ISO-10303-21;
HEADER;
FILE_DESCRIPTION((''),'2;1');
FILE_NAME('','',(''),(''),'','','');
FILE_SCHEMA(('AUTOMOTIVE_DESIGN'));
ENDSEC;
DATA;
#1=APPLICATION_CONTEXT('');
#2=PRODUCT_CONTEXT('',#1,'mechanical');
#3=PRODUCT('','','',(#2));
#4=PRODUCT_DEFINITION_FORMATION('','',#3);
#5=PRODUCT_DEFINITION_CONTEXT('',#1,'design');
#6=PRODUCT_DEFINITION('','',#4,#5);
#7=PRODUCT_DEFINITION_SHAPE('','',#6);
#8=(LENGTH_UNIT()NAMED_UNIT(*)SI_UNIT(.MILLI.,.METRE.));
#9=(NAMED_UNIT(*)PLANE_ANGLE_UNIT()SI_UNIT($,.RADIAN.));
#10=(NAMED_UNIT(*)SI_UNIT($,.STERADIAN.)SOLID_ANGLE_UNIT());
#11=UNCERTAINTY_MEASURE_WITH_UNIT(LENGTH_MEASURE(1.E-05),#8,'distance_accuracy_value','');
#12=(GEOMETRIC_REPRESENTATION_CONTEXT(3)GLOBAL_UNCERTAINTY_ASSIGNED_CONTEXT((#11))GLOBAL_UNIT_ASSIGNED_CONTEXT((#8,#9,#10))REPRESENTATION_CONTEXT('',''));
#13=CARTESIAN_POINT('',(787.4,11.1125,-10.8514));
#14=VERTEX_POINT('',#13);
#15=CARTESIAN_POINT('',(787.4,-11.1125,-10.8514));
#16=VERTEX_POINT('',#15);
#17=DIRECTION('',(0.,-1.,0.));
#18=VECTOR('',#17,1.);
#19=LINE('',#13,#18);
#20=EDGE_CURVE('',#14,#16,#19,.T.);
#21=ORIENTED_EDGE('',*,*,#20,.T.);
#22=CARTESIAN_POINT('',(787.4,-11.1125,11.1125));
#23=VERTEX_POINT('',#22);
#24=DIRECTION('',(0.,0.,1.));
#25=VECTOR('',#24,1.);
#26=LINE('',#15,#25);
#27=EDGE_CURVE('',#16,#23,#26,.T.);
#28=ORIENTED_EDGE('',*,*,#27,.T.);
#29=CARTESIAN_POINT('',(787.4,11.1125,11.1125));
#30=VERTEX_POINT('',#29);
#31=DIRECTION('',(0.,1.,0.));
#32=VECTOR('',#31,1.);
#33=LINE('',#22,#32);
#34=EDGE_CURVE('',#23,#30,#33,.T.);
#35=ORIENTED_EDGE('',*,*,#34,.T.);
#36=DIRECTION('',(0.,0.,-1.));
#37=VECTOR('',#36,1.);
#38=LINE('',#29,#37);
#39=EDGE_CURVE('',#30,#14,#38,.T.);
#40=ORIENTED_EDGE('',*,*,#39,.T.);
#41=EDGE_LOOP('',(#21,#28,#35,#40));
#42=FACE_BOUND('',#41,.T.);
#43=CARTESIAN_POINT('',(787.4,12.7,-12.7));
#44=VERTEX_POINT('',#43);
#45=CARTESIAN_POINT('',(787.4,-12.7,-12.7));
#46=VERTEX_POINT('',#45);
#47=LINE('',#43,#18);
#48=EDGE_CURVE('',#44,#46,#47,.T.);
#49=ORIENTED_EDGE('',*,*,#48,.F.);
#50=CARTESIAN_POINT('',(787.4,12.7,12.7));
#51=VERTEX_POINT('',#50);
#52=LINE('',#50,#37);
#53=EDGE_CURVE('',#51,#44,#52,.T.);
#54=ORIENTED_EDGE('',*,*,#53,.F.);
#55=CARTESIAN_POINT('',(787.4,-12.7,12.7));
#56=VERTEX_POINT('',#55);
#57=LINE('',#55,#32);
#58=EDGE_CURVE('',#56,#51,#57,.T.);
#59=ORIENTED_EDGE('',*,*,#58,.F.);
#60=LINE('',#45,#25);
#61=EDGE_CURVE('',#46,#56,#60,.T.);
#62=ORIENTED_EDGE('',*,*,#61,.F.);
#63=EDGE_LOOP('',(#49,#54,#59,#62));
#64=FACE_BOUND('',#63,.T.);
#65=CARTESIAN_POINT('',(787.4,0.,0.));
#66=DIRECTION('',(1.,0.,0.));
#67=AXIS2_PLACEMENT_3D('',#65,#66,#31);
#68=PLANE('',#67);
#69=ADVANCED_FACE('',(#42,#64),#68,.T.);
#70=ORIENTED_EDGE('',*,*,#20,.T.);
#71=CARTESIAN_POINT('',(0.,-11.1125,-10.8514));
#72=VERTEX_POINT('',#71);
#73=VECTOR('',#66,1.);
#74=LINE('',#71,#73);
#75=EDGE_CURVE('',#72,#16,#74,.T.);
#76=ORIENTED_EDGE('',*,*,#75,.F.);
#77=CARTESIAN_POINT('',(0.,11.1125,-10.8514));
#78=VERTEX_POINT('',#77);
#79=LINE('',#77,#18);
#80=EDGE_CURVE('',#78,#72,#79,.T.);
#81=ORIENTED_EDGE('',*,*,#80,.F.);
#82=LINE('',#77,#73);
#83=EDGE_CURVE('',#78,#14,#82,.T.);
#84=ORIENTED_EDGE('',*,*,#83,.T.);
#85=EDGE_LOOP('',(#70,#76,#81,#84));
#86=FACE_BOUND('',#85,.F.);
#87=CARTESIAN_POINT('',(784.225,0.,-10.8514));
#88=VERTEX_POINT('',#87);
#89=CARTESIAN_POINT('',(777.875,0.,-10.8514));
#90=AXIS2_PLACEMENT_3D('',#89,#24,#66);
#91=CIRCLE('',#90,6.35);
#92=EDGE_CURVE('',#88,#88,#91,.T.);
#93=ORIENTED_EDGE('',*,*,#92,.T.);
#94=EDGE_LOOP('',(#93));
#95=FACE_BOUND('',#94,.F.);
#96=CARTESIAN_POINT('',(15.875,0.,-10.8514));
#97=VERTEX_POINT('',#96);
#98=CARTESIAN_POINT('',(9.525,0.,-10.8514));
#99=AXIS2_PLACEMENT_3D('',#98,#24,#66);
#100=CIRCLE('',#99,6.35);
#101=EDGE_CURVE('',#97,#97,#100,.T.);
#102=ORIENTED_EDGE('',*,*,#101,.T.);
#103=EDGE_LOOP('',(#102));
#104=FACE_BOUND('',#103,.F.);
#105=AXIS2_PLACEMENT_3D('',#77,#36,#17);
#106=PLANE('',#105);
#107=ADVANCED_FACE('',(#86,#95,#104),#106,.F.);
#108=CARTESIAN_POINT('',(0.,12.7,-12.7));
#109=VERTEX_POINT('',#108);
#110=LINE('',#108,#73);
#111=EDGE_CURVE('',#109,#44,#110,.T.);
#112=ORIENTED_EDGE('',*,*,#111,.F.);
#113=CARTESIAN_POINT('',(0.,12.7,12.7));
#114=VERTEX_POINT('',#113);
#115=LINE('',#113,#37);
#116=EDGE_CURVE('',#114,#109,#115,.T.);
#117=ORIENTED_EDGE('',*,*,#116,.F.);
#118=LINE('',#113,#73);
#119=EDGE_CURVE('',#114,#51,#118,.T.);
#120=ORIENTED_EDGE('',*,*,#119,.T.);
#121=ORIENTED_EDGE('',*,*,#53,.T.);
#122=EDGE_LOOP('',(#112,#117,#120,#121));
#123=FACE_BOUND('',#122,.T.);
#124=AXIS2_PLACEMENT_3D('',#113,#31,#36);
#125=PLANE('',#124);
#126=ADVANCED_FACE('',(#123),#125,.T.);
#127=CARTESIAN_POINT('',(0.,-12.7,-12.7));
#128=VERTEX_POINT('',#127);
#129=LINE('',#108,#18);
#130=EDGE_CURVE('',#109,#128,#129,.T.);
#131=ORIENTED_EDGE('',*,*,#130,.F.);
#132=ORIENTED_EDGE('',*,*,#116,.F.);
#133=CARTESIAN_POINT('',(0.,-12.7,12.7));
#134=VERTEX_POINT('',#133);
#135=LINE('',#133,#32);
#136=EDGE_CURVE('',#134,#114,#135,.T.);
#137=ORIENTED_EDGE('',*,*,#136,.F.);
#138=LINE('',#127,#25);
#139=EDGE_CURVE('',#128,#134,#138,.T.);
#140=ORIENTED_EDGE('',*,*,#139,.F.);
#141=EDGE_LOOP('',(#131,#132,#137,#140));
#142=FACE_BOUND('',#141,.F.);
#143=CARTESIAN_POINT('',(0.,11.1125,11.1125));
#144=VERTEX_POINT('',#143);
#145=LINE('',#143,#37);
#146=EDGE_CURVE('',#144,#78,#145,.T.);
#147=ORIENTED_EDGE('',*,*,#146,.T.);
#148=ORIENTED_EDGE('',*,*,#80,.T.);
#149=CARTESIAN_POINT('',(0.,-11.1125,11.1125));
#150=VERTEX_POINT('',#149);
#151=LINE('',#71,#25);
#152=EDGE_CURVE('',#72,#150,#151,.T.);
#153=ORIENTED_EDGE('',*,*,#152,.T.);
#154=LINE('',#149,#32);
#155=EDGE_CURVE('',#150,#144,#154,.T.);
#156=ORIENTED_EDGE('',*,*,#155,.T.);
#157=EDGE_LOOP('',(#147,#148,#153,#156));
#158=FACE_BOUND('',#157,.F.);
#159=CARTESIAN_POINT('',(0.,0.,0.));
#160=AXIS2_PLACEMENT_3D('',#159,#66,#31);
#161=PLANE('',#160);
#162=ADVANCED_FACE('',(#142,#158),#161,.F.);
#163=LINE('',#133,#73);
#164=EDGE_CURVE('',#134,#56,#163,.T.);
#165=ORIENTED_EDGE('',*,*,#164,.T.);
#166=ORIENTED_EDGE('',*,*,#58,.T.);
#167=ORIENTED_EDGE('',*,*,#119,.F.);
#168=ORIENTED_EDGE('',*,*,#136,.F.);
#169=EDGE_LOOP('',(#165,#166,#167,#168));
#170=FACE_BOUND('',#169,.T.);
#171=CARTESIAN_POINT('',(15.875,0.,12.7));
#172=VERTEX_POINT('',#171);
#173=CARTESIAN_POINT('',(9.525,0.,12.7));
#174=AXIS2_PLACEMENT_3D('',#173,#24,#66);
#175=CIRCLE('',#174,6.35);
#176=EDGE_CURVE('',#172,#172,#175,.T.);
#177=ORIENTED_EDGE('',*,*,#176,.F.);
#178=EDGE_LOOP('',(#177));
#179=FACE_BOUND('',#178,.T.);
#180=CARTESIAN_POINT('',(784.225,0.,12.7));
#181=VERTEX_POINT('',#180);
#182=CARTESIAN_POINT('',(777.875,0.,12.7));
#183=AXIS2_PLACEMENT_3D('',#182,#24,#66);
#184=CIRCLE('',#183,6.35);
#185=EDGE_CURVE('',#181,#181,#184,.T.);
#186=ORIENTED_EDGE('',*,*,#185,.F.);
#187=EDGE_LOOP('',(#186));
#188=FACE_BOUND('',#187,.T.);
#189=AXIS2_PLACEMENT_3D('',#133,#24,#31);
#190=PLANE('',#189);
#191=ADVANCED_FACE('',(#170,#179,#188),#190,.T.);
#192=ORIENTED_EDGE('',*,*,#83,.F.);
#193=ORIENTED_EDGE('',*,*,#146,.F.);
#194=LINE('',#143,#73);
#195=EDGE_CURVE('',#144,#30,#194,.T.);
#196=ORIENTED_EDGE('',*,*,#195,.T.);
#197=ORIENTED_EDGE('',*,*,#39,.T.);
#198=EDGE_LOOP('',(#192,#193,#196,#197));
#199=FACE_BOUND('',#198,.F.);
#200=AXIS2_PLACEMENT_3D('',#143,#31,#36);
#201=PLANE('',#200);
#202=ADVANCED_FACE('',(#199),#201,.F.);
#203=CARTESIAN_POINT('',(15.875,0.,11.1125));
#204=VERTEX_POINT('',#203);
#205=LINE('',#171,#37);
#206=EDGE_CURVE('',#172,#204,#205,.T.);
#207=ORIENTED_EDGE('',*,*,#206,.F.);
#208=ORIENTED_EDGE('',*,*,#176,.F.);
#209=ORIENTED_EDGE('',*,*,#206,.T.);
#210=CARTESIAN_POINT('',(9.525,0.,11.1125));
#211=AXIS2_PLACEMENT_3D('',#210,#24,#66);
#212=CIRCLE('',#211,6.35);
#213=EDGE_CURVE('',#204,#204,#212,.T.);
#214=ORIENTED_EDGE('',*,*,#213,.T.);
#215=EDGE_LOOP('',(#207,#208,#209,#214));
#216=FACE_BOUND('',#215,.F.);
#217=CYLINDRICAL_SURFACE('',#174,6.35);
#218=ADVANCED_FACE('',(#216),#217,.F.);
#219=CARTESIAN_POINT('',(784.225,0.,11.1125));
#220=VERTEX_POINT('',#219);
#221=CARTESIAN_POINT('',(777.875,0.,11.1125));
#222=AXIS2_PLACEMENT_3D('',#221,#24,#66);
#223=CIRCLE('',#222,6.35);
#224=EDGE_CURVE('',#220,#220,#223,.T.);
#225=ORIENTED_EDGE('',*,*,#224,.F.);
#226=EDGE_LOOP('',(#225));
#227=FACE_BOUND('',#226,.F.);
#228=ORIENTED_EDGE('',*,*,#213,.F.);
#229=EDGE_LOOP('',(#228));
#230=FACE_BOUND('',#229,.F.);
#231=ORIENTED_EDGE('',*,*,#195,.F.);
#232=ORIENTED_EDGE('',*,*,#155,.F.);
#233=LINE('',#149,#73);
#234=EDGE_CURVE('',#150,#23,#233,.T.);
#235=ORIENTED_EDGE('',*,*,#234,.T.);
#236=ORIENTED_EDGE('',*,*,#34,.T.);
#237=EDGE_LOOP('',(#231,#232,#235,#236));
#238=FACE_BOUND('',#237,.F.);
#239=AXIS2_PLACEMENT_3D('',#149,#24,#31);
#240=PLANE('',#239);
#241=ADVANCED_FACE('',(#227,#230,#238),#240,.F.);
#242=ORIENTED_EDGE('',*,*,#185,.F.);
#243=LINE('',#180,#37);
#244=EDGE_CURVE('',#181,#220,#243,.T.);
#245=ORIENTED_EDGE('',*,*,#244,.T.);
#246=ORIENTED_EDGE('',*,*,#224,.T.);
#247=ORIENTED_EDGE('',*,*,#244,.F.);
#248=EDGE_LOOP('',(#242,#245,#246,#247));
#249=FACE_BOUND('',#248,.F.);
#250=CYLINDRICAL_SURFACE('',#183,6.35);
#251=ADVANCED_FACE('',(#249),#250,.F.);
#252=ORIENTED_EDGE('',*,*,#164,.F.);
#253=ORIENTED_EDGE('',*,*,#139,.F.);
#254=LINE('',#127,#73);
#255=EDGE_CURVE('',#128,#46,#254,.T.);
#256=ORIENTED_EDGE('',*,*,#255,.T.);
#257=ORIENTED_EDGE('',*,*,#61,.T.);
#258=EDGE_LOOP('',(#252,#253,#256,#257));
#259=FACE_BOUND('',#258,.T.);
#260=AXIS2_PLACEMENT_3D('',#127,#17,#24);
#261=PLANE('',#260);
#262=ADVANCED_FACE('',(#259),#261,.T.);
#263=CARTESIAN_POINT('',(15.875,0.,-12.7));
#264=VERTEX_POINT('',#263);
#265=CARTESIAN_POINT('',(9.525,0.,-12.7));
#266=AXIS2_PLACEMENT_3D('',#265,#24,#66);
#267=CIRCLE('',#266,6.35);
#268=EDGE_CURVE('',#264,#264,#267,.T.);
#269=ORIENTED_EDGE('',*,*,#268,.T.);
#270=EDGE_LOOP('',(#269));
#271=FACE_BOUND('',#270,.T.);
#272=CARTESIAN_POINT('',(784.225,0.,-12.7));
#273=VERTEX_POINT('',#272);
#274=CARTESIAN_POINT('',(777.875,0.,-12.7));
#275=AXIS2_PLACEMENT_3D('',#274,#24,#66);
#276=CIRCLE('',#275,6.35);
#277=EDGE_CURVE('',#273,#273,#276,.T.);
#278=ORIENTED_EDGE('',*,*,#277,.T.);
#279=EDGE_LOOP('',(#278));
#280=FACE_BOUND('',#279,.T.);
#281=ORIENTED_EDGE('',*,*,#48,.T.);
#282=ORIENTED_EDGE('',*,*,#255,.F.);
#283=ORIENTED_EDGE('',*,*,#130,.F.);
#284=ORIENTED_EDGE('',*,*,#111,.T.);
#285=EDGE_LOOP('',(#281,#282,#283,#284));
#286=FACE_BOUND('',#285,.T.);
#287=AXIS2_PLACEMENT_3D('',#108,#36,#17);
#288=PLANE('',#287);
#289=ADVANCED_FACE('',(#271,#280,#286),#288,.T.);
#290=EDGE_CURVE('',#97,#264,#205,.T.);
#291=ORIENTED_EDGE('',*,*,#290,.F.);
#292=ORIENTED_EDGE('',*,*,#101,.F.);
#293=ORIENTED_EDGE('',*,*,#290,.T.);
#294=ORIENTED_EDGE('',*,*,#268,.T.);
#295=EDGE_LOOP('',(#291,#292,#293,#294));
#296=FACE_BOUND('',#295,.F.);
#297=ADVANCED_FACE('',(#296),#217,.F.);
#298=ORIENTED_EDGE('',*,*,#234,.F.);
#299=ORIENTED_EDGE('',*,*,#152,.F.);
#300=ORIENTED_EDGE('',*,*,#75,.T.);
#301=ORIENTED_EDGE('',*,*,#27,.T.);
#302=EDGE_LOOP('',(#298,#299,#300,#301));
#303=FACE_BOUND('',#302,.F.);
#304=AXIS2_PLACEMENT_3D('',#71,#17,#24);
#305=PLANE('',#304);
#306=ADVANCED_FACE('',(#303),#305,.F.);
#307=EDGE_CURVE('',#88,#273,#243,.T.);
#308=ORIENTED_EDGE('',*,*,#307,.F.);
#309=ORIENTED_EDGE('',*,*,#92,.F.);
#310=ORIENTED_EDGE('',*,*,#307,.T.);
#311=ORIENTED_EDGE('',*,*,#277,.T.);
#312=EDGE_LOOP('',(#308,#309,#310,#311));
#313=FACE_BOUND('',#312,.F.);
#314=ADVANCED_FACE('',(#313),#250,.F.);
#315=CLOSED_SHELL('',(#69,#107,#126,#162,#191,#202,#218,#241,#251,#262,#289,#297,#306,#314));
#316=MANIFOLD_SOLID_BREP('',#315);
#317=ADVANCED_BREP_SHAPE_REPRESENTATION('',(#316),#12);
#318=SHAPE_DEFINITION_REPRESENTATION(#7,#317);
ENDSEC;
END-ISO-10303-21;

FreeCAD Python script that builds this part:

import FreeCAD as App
import Part
import Sketcher

V = App.Vector
Q = App.Units.Quantity

doc = App.newDocument("Part")
body = doc.addObject("PartDesign::Body", "Body")

sketch1 = body.newObject("Sketcher::SketchObject", "Sketch")
sketch1.AttachmentSupport = (doc.getObject("YZ_Plane"), [""])
sketch1.MapMode = "FlatFace"
sketch1.addGeometry(Part.LineSegment(V(13, 13, 0), V(-13, 13, 0)), False)
sketch1.addGeometry(Part.LineSegment(V(-13, 13, 0), V(-13, -13, 0)), False)
sketch1.addGeometry(Part.LineSegment(V(-13, -13, 0), V(13, -13, 0)), False)
sketch1.addGeometry(Part.LineSegment(V(13, -13, 0), V(13, 13, 0)), False)
sketch1.addGeometry(Part.LineSegment(V(-11, -11, 0), V(-11, 11, 0)), False)
sketch1.addGeometry(Part.LineSegment(V(-11, 11, 0), V(11, 11, 0)), False)
sketch1.addGeometry(Part.LineSegment(V(11, 11, 0), V(11, -11, 0)), False)
sketch1.addGeometry(Part.LineSegment(V(11, -11, 0), V(-11, -11, 0)), False)
sketch1.addConstraint(Sketcher.Constraint("Coincident", 0, 2, 1, 1))
sketch1.addConstraint(Sketcher.Constraint("Coincident", 1, 2, 2, 1))
sketch1.addConstraint(Sketcher.Constraint("Coincident", 2, 2, 3, 1))
sketch1.addConstraint(Sketcher.Constraint("Coincident", 3, 2, 0, 1))
sketch1.addConstraint(Sketcher.Constraint("Coincident", 4, 2, 5, 1))
sketch1.addConstraint(Sketcher.Constraint("Coincident", 5, 2, 6, 1))
sketch1.addConstraint(Sketcher.Constraint("Coincident", 6, 2, 7, 1))
sketch1.addConstraint(Sketcher.Constraint("Coincident", 7, 2, 4, 1))
sketch1.addConstraint(Sketcher.Constraint("Horizontal", 0))
sketch1.addConstraint(Sketcher.Constraint("Vertical", 1))
sketch1.addConstraint(Sketcher.Constraint("Horizontal", 2))
sketch1.addConstraint(Sketcher.Constraint("Vertical", 3))
sketch1.addConstraint(Sketcher.Constraint("Vertical", 4))
sketch1.addConstraint(Sketcher.Constraint("Horizontal", 5))
sketch1.addConstraint(Sketcher.Constraint("Vertical", 6))
sketch1.addConstraint(Sketcher.Constraint("Horizontal", 7))
sketch1.addConstraint(Sketcher.Constraint("Symmetric", 0, 2, 2, 2, -1, 1))
sketch1.addConstraint(Sketcher.Constraint("Equal", 2, 1))
sketch1.addConstraint(Sketcher.Constraint("DistanceX", 0, 2, 0, 1, Q("1 in")))
sketch1.addConstraint(Sketcher.Constraint("DistanceX", 0, 2, 4, 2, Q("0.0625 in")))
sketch1.addConstraint(Sketcher.Constraint("DistanceY", 4, 2, 0, 2, Q("0.0625 in")))
sketch1.addConstraint(Sketcher.Constraint("DistanceX", 5, 2, 3, 2, Q("0.0625 in")))
sketch1.addConstraint(Sketcher.Constraint("DistanceY", 4, 1, 4, 2, 21.964))
pad1 = body.newObject("PartDesign::Pad", "Pad")
pad1.Profile = sketch1
pad1.Length = Q("31 in")

sketch2 = body.newObject("Sketcher::SketchObject", "Sketch001")
sketch2.AttachmentSupport = (doc.getObject("XY_Plane"), [""])
sketch2.MapMode = "FlatFace"
sketch2.AttachmentOffset = App.Placement(V(0, 0, 0.5 * 25.4), App.Rotation())
sketch2.addGeometry(Part.Circle(V(10, 0, 0), V(0, 0, 1), 6), False)
sketch2.addGeometry(Part.Circle(V(778, 0, 0), V(0, 0, 1), 6), False)
sketch2.addConstraint(Sketcher.Constraint("Equal", 0, 1))
sketch2.addConstraint(Sketcher.Constraint("PointOnObject", 0, 3, -1))
sketch2.addConstraint(Sketcher.Constraint("PointOnObject", 1, 3, -1))
sketch2.addConstraint(Sketcher.Constraint("Diameter", 0, Q("0.5 in")))
sketch2.addConstraint(Sketcher.Constraint("DistanceX", -1, 1, 0, 3, Q("0.375 in")))
sketch2.addConstraint(Sketcher.Constraint("DistanceX", 0, 3, 1, 3, Q("30.25 in")))
pocket1 = body.newObject("PartDesign::Pocket", "Pocket")
pocket1.Profile = sketch2
pocket1.Length = Q("2 in")

doc.recompute()
